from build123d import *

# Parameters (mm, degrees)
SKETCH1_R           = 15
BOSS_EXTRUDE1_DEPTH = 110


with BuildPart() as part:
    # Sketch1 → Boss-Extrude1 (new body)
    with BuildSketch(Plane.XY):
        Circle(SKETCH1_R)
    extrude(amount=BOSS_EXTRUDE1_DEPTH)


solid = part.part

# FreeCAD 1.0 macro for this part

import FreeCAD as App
import Part
import Sketcher
from FreeCAD import Vector

doc = App.newDocument("Part")
body = doc.addObject("PartDesign::Body", "Body")

sketch1 = doc.addObject("Sketcher::SketchObject", "Sketch")
body.addObject(sketch1)
sketch1.AttachmentSupport = (doc.XY_Plane, [""])
sketch1.MapMode = "FlatFace"
sketch1.addGeometry(Part.Circle(Vector(0, 0, 0), Vector(0, 0, 1), 15), False)
sketch1.addConstraint([
    Sketcher.Constraint("Coincident", 0, 3, -1, 1),
    Sketcher.Constraint("Diameter", 0, 30.0),
])
pad1 = doc.addObject("PartDesign::Pad", "Pad")
body.addObject(pad1)
pad1.Profile = sketch1
pad1.Length = 110

doc.recompute()
